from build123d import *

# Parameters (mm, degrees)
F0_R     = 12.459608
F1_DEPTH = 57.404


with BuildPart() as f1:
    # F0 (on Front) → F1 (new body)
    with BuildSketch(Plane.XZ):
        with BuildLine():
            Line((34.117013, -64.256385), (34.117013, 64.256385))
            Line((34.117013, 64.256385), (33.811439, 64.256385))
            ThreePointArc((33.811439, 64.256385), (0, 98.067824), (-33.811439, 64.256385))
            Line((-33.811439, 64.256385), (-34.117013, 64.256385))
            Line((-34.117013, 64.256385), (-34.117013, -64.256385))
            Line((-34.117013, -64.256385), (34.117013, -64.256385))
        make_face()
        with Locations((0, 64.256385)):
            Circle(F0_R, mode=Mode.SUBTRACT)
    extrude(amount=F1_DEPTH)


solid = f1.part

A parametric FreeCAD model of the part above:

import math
import FreeCAD as App
import Part
import Sketcher

V = App.Vector
Q = App.Units.Quantity

doc = App.newDocument("Part")
body = doc.addObject("PartDesign::Body", "Body")

sketch1 = body.newObject("Sketcher::SketchObject", "Sketch")
sketch1.AttachmentSupport = (doc.getObject("XZ_Plane"), [""])
sketch1.MapMode = "FlatFace"
sketch1.addGeometry([
    Part.LineSegment(V(34.12, -64.26, 0), V(34.12, 64.26, 0)),
    Part.LineSegment(V(34.12, 64.26, 0), V(33.81, 64.26, 0)),
    Part.ArcOfCircle(Part.Circle(V(0, 64.26, 0), V(0, 0, 1), 33.81), math.radians(0), math.radians(180)),
    Part.LineSegment(V(-33.81, 64.26, 0), V(-34.12, 64.26, 0)),
    Part.LineSegment(V(-34.12, 64.26, 0), V(-34.12, -64.26, 0)),
    Part.LineSegment(V(-34.12, -64.26, 0), V(34.12, -64.26, 0)),
    Part.Circle(V(0, 64.26, 0), V(0, 0, 1), 12.46),
], False)
sketch1.addConstraint([
    Sketcher.Constraint("Coincident", 0, 2, 1, 1),
    Sketcher.Constraint("Coincident", 1, 2, 2, 1),
    Sketcher.Constraint("Coincident", 2, 2, 3, 1),
    Sketcher.Constraint("Coincident", 3, 2, 4, 1),
    Sketcher.Constraint("Coincident", 4, 2, 5, 1),
    Sketcher.Constraint("Coincident", 5, 2, 0, 1),
    Sketcher.Constraint("Vertical", 0),
    Sketcher.Constraint("Horizontal", 1),
    Sketcher.Constraint("Horizontal", 3),
    Sketcher.Constraint("Vertical", 4),
    Sketcher.Constraint("Horizontal", 5),
    Sketcher.Constraint("Coincident", 6, 3, 2, 3),
    Sketcher.Constraint("Symmetric", 0, 2, 4, 2, -1, 1),
    Sketcher.Constraint("Symmetric", 1, 2, 2, 2, -2),
    Sketcher.Constraint("Horizontal", 6, 3, 0, 2),
    Sketcher.Constraint("Radius", 2, Q("33.811439 mm")),
    Sketcher.Constraint("Diameter", 6, Q("24.919216 mm")),
    Sketcher.Constraint("DistanceY", 0, 1, 0, 2, Q("128.51277 mm")),
    Sketcher.Constraint("DistanceX", 1, 2, 1, 1, Q("0.305574 mm")),
])
pad1 = body.newObject("PartDesign::Pad", "Pad")
pad1.Profile = sketch1
pad1.Length = Q("2.26 in")

doc.recompute()
